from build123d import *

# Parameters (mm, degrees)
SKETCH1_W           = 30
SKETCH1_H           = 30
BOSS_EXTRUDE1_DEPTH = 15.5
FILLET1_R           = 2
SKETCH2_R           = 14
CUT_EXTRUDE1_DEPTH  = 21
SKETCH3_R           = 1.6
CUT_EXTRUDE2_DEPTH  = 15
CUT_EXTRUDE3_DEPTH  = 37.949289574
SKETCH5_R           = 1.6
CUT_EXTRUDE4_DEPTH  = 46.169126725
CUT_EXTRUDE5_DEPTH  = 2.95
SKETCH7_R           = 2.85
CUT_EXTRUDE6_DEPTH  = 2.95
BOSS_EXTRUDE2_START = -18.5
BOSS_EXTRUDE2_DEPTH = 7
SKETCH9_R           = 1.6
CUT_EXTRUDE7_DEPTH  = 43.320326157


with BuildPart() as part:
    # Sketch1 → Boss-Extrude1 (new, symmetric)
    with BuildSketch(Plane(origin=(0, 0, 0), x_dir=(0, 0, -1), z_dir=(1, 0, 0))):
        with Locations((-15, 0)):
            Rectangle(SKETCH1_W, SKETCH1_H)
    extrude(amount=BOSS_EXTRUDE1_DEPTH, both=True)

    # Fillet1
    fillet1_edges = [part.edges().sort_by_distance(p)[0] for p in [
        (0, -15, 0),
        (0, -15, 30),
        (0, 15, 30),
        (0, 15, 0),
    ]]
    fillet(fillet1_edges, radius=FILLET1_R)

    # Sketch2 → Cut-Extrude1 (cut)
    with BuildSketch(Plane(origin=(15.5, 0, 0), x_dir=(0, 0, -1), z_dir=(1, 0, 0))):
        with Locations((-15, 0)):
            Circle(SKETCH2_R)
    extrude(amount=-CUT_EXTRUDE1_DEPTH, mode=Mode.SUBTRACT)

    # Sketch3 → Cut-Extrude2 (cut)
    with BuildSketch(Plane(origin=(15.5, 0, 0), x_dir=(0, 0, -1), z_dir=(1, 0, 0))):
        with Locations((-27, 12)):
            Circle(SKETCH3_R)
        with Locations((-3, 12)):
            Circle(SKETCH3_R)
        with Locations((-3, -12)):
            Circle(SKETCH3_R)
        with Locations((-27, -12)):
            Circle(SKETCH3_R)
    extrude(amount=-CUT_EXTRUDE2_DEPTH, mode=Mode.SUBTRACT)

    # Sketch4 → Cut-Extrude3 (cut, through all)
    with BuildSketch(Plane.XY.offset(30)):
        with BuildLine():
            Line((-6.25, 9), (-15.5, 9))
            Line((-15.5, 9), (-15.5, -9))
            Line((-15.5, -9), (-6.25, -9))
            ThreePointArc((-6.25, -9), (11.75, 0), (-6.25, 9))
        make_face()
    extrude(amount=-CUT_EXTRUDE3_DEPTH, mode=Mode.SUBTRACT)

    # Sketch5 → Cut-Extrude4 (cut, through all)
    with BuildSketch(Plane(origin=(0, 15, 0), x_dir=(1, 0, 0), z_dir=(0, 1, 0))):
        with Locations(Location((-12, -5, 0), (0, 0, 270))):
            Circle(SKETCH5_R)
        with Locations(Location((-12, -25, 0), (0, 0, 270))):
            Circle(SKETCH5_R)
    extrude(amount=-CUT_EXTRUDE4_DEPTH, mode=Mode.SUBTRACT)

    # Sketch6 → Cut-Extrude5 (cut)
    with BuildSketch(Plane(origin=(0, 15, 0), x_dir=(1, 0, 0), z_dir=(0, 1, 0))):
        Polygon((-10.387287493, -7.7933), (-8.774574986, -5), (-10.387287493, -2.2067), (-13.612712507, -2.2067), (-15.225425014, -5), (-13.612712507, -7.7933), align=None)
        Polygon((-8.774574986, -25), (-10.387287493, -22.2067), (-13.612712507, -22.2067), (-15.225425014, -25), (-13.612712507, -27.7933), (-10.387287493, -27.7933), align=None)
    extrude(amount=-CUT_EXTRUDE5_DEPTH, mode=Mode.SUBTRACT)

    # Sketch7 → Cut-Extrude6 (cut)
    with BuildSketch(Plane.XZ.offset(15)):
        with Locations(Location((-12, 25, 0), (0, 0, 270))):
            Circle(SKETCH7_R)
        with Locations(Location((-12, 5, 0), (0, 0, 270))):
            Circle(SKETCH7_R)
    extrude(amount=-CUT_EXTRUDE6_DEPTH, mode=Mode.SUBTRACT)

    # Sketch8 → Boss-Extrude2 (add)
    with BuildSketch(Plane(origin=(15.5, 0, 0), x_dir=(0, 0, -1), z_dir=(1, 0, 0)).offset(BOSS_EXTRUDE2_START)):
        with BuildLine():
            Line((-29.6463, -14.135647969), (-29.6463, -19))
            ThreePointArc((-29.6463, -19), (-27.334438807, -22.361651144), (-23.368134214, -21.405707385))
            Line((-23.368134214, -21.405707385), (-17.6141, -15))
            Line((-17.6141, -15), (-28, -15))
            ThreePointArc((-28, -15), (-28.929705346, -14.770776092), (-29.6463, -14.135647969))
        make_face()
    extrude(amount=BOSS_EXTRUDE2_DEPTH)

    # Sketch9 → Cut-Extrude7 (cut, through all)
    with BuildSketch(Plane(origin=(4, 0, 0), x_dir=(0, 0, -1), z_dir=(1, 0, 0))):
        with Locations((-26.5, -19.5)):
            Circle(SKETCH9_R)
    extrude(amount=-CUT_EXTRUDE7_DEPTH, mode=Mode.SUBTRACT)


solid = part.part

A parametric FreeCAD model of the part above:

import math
import FreeCAD as App
import Part
import Sketcher
from FreeCAD import Vector
Q = App.Units.Quantity


def edges_at(feature, points):
    """Names of the edges that pass closest to the given points."""
    edges = feature.Shape.Edges
    near = lambda p: min(range(len(edges)), key=lambda i: edges[i].distToShape(Part.Vertex(*p))[0])
    return sorted({f"Edge{near(p) + 1}" for p in points})

doc = App.newDocument("Part")
body = doc.addObject("PartDesign::Body", "Body")

# Sketch on YZ plane
sketch1 = body.newObject("Sketcher::SketchObject", "Sketch")
sketch1.AttachmentSupport = (doc.getObject("YZ_Plane"), [""])
sketch1.MapMode = "FlatFace"
sketch1.addGeometry(Part.LineSegment(Vector(15, 30, 0), Vector(-15, 30, 0)), False)
sketch1.addGeometry(Part.LineSegment(Vector(-15, 30, 0), Vector(-15, 0, 0)), False)
sketch1.addGeometry(Part.LineSegment(Vector(-15, 0, 0), Vector(15, 0, 0)), False)
sketch1.addGeometry(Part.LineSegment(Vector(15, 0, 0), Vector(15, 30, 0)), False)
sketch1.addConstraint(Sketcher.Constraint("Coincident", 0, 2, 1, 1))
sketch1.addConstraint(Sketcher.Constraint("Coincident", 1, 2, 2, 1))
sketch1.addConstraint(Sketcher.Constraint("Coincident", 2, 2, 3, 1))
sketch1.addConstraint(Sketcher.Constraint("Coincident", 3, 2, 0, 1))
sketch1.addConstraint(Sketcher.Constraint("Horizontal", 0))
sketch1.addConstraint(Sketcher.Constraint("Vertical", 1))
sketch1.addConstraint(Sketcher.Constraint("Horizontal", 2))
sketch1.addConstraint(Sketcher.Constraint("Vertical", 3))
sketch1.addConstraint(Sketcher.Constraint("Symmetric", 1, 2, 2, 2, -1, 1))
sketch1.addConstraint(Sketcher.Constraint("Equal", 2, 1))
sketch1.addConstraint(Sketcher.Constraint("DistanceX", 0, 2, 0, 1, 30.0))
pad1 = body.newObject("PartDesign::Pad", "Pad")
pad1.Profile = sketch1
pad1.Length = 31
pad1.Midplane = True
doc.recompute()

fillet = body.newObject("PartDesign::Fillet", "Fillet")
fillet.Base = (pad1, edges_at(pad1, [
    (0, -15, 0),
    (0, -15, 30),
    (0, 15, 30),
    (0, 15, 0),
]))
fillet.Radius = 2

# Sketch on YZ plane
sketch2 = body.newObject("Sketcher::SketchObject", "Sketch001")
sketch2.AttachmentSupport = (doc.getObject("YZ_Plane"), [""])
sketch2.MapMode = "FlatFace"
sketch2.AttachmentOffset = App.Placement(Vector(0, 0, 15.5), App.Rotation())
sketch2.addGeometry(Part.Circle(Vector(0, 15, 0), Vector(0, 0, 1), 14), False)
sketch2.addConstraint(Sketcher.Constraint("PointOnObject", 0, 3, -2))
sketch2.addConstraint(Sketcher.Constraint("Diameter", 0, 28.0))
sketch2.addConstraint(Sketcher.Constraint("DistanceY", -1, 1, 0, 3, 15.0))
pocket1 = body.newObject("PartDesign::Pocket", "Pocket")
pocket1.Profile = sketch2
pocket1.Length = 21

# Sketch on YZ plane
sketch3 = body.newObject("Sketcher::SketchObject", "Sketch002")
sketch3.AttachmentSupport = (doc.getObject("YZ_Plane"), [""])
sketch3.MapMode = "FlatFace"
sketch3.AttachmentOffset = App.Placement(Vector(0, 0, 15.5), App.Rotation())
sketch3.addGeometry(Part.Circle(Vector(12, 27, 0), Vector(0, 0, 1), 1.6), False)
sketch3.addGeometry(Part.Circle(Vector(12, 3, 0), Vector(0, 0, 1), 1.6), False)
sketch3.addGeometry(Part.Circle(Vector(-12, 3, 0), Vector(0, 0, 1), 1.6), False)
sketch3.addGeometry(Part.Circle(Vector(-12, 27, 0), Vector(0, 0, 1), 1.6), False)
sketch3.addConstraint(Sketcher.Constraint("Equal", 0, 1))
sketch3.addConstraint(Sketcher.Constraint("Equal", 1, 2))
sketch3.addConstraint(Sketcher.Constraint("Equal", 2, 3))
sketch3.addConstraint(Sketcher.Constraint("Symmetric", 1, 3, 2, 3, -2))
sketch3.addConstraint(Sketcher.Constraint("Symmetric", 0, 3, 3, 3, -2))
sketch3.addConstraint(Sketcher.Constraint("Vertical", 0, 3, 1, 3))
sketch3.addConstraint(Sketcher.Constraint("Diameter", 0, 3.2))
sketch3.addConstraint(Sketcher.Constraint("DistanceX", -1, 1, 0, 3, 12.0))
sketch3.addConstraint(Sketcher.Constraint("DistanceY", -1, 1, 0, 3, 27.0))
sketch3.addConstraint(Sketcher.Constraint("DistanceY", -1, 1, 1, 3, 3.0))
pocket2 = body.newObject("PartDesign::Pocket", "Pocket001")
pocket2.Profile = sketch3
pocket2.Length = 15

# Sketch on XY plane
sketch4 = body.newObject("Sketcher::SketchObject", "Sketch003")
sketch4.AttachmentSupport = (doc.getObject("XY_Plane"), [""])
sketch4.MapMode = "FlatFace"
sketch4.AttachmentOffset = App.Placement(Vector(0, 0, 30), App.Rotation())
sketch4.addGeometry(Part.LineSegment(Vector(-6, 9, 0), Vector(-16, 9, 0)), False)
sketch4.addGeometry(Part.LineSegment(Vector(-16, 9, 0), Vector(-16, -9, 0)), False)
sketch4.addGeometry(Part.LineSegment(Vector(-16, -9, 0), Vector(-6, -9, 0)), False)
sketch4.addGeometry(Part.ArcOfCircle(Part.Circle(Vector(0, 0, 0), Vector(0, 0, 1), 11), math.radians(-127), math.radians(127)), False)
sketch4.addConstraint(Sketcher.Constraint("Coincident", 0, 2, 1, 1))
sketch4.addConstraint(Sketcher.Constraint("Coincident", 1, 2, 2, 1))
sketch4.addConstraint(Sketcher.Constraint("Coincident", 2, 2, 3, 1))
sketch4.addConstraint(Sketcher.Constraint("Coincident", 3, 2, 0, 1))
sketch4.addConstraint(Sketcher.Constraint("Horizontal", 0))
sketch4.addConstraint(Sketcher.Constraint("Vertical", 1))
sketch4.addConstraint(Sketcher.Constraint("Horizontal", 2))
sketch4.addConstraint(Sketcher.Constraint("Symmetric", 2, 2, 3, 2, -1))
sketch4.addConstraint(Sketcher.Constraint("DistanceY", 1, 2, 1, 1, 18.0))
sketch4.addConstraint(Sketcher.Constraint("Radius", 3, 11.25))
sketch4.addConstraint(Sketcher.Constraint("DistanceX", 0, 2, 3, 3, 16.0))
sketch4.addConstraint(Sketcher.Constraint("DistanceX", -1, 1, 3, 3, 0.5))
pocket3 = body.newObject("PartDesign::Pocket", "Pocket002")
pocket3.Profile = sketch4
pocket3.Type = "ThroughAll"

# Sketch on XZ plane
sketch5 = body.newObject("Sketcher::SketchObject", "Sketch004")
sketch5.AttachmentSupport = (doc.getObject("XZ_Plane"), [""])
sketch5.MapMode = "FlatFace"
sketch5.AttachmentOffset = App.Placement(Vector(0, 0, -15), App.Rotation())
sketch5.addGeometry(Part.Circle(Vector(-12, 5, 0), Vector(0, 0, 1), 1.6), False)
sketch5.addGeometry(Part.Circle(Vector(-12, 25, 0), Vector(0, 0, 1), 1.6), False)
sketch5.addConstraint(Sketcher.Constraint("Equal", 0, 1))
sketch5.addConstraint(Sketcher.Constraint("Vertical", 0, 3, 1, 3))
sketch5.addConstraint(Sketcher.Constraint("Diameter", 0, 3.2))
sketch5.addConstraint(Sketcher.Constraint("DistanceX", 0, 3, -1, 1, 12.0))
sketch5.addConstraint(Sketcher.Constraint("DistanceY", -1, 1, 0, 3, 5.0))
sketch5.addConstraint(Sketcher.Constraint("DistanceY", -1, 1, 1, 3, 25.0))
pocket4 = body.newObject("PartDesign::Pocket", "Pocket003")
pocket4.Profile = sketch5
pocket4.Type = "ThroughAll"
pocket4.Reversed = True

# Sketch on XZ plane
sketch6 = body.newObject("Sketcher::SketchObject", "Sketch005")
sketch6.AttachmentSupport = (doc.getObject("XZ_Plane"), [""])
sketch6.MapMode = "FlatFace"
sketch6.AttachmentOffset = App.Placement(Vector(0, 0, -15), App.Rotation())
sketch6.addGeometry(Part.LineSegment(Vector(-10.4, 7.8, 0), Vector(-8.8, 5, 0)), False)
sketch6.addGeometry(Part.LineSegment(Vector(-8.8, 5, 0), Vector(-10.4, 2.2, 0)), False)
sketch6.addGeometry(Part.LineSegment(Vector(-10.4, 2.2, 0), Vector(-13.6, 2.2, 0)), False)
sketch6.addGeometry(Part.LineSegment(Vector(-13.6, 2.2, 0), Vector(-15.2, 5, 0)), False)
sketch6.addGeometry(Part.LineSegment(Vector(-15.2, 5, 0), Vector(-13.6, 7.8, 0)), False)
sketch6.addGeometry(Part.LineSegment(Vector(-13.6, 7.8, 0), Vector(-10.4, 7.8, 0)), False)
sketch6.addGeometry(Part.LineSegment(Vector(-8.8, 25, 0), Vector(-10.4, 22.2, 0)), False)
sketch6.addGeometry(Part.LineSegment(Vector(-10.4, 22.2, 0), Vector(-13.6, 22.2, 0)), False)
sketch6.addGeometry(Part.LineSegment(Vector(-13.6, 22.2, 0), Vector(-15.2, 25, 0)), False)
sketch6.addGeometry(Part.LineSegment(Vector(-15.2, 25, 0), Vector(-13.6, 27.8, 0)), False)
sketch6.addGeometry(Part.LineSegment(Vector(-13.6, 27.8, 0), Vector(-10.4, 27.8, 0)), False)
sketch6.addGeometry(Part.LineSegment(Vector(-10.4, 27.8, 0), Vector(-8.8, 25, 0)), False)
sketch6.addConstraint(Sketcher.Constraint("Coincident", 0, 2, 1, 1))
sketch6.addConstraint(Sketcher.Constraint("Coincident", 1, 2, 2, 1))
sketch6.addConstraint(Sketcher.Constraint("Coincident", 2, 2, 3, 1))
sketch6.addConstraint(Sketcher.Constraint("Coincident", 3, 2, 4, 1))
sketch6.addConstraint(Sketcher.Constraint("Coincident", 4, 2, 5, 1))
sketch6.addConstraint(Sketcher.Constraint("Coincident", 5, 2, 0, 1))
sketch6.addConstraint(Sketcher.Constraint("Coincident", 6, 2, 7, 1))
sketch6.addConstraint(Sketcher.Constraint("Coincident", 7, 2, 8, 1))
sketch6.addConstraint(Sketcher.Constraint("Coincident", 8, 2, 9, 1))
sketch6.addConstraint(Sketcher.Constraint("Coincident", 9, 2, 10, 1))
sketch6.addConstraint(Sketcher.Constraint("Coincident", 10, 2, 11, 1))
sketch6.addConstraint(Sketcher.Constraint("Coincident", 11, 2, 6, 1))
sketch6.addConstraint(Sketcher.Constraint("Horizontal", 2))
sketch6.addConstraint(Sketcher.Constraint("Horizontal", 5))
sketch6.addConstraint(Sketcher.Constraint("Horizontal", 7))
sketch6.addConstraint(Sketcher.Constraint("Horizontal", 10))
sketch6.addConstraint(Sketcher.Constraint("Parallel", 0, 3))
sketch6.addConstraint(Sketcher.Constraint("Parallel", 1, 4))
sketch6.addConstraint(Sketcher.Constraint("Parallel", 4, 6))
sketch6.addConstraint(Sketcher.Constraint("Parallel", 3, 8))
sketch6.addConstraint(Sketcher.Constraint("Parallel", 6, 9))
sketch6.addConstraint(Sketcher.Constraint("Parallel", 8, 11))
sketch6.addConstraint(Sketcher.Constraint("Horizontal", 0, 2, 3, 2))
sketch6.addConstraint(Sketcher.Constraint("Horizontal", 8, 2, 11, 2))
sketch6.addConstraint(Sketcher.Constraint("Vertical", 2, 2, 4, 2))
sketch6.addConstraint(Sketcher.Constraint("Vertical", 1, 2, 5, 2))
sketch6.addConstraint(Sketcher.Constraint("Vertical", 5, 2, 6, 2))
sketch6.addConstraint(Sketcher.Constraint("Vertical", 4, 2, 7, 2))
sketch6.addConstraint(Sketcher.Constraint("Vertical", 3, 2, 8, 2))
sketch6.addConstraint(Sketcher.Constraint("Vertical", 7, 2, 9, 2))
sketch6.addConstraint(Sketcher.Constraint("Angle", 0, Q("-60 deg")))
sketch6.addConstraint(Sketcher.Constraint("DistanceY", -1, 1, 0, 2, 5.0))
sketch6.addConstraint(Sketcher.Constraint("DistanceY", -1, 1, 8, 2, 25.0))
sketch6.addConstraint(Sketcher.Constraint("DistanceY", -1, 1, 1, 2, 2.2067))
sketch6.addConstraint(Sketcher.Constraint("DistanceX", 2, 2, 2, 1, 3.225425))
sketch6.addConstraint(Sketcher.Constraint("DistanceX", 0, 2, -1, 1, 8.774575))
pocket5 = body.newObject("PartDesign::Pocket", "Pocket004")
pocket5.Profile = sketch6
pocket5.Length = 2.95
pocket5.Reversed = True

# Sketch on XZ plane
sketch7 = body.newObject("Sketcher::SketchObject", "Sketch006")
sketch7.AttachmentSupport = (doc.getObject("XZ_Plane"), [""])
sketch7.MapMode = "FlatFace"
sketch7.AttachmentOffset = App.Placement(Vector(0, 0, 15), App.Rotation())
sketch7.addGeometry(Part.Circle(Vector(-12, 25, 0), Vector(0, 0, 1), 2.9), False)
sketch7.addGeometry(Part.Circle(Vector(-12, 5, 0), Vector(0, 0, 1), 2.9), False)
sketch7.addConstraint(Sketcher.Constraint("Equal", 0, 1))
sketch7.addConstraint(Sketcher.Constraint("Vertical", 0, 3, 1, 3))
sketch7.addConstraint(Sketcher.Constraint("Diameter", 0, 5.7))
sketch7.addConstraint(Sketcher.Constraint("DistanceX", 0, 3, -1, 1, 12.0))
sketch7.addConstraint(Sketcher.Constraint("DistanceY", -1, 1, 0, 3, 25.0))
sketch7.addConstraint(Sketcher.Constraint("DistanceY", -1, 1, 1, 3, 5.0))
pocket6 = body.newObject("PartDesign::Pocket", "Pocket005")
pocket6.Profile = sketch7
pocket6.Length = 2.95

# Sketch on YZ plane
sketch8 = body.newObject("Sketcher::SketchObject", "Sketch007")
sketch8.AttachmentSupport = (doc.getObject("YZ_Plane"), [""])
sketch8.MapMode = "FlatFace"
sketch8.AttachmentOffset = App.Placement(Vector(0, 0, -3), App.Rotation())
sketch8.addGeometry(Part.LineSegment(Vector(-14.1, 29.6, 0), Vector(-19, 29.6, 0)), False)
sketch8.addGeometry(Part.ArcOfCircle(Part.Circle(Vector(-19, 26, 0), Vector(0, 0, 1), 3.6), math.radians(90), math.radians(228)), False)
sketch8.addGeometry(Part.LineSegment(Vector(-21.4, 23.4, 0), Vector(-15, 17.6, 0)), False)
sketch8.addGeometry(Part.LineSegment(Vector(-15, 17.6, 0), Vector(-15, 28, 0)), False)
sketch8.addGeometry(Part.ArcOfCircle(Part.Circle(Vector(-13, 28, 0), Vector(0, 0, 1), 2), math.radians(125), math.radians(180)), False)
sketch8.addConstraint(Sketcher.Constraint("Tangent", 0, 2, 1, 1))
sketch8.addConstraint(Sketcher.Constraint("Tangent", 1, 2, 2, 1))
sketch8.addConstraint(Sketcher.Constraint("Coincident", 2, 2, 3, 1))
sketch8.addConstraint(Sketcher.Constraint("Tangent", 3, 2, 4, 2))
sketch8.addConstraint(Sketcher.Constraint("Coincident", 4, 1, 0, 1))
sketch8.addConstraint(Sketcher.Constraint("Horizontal", 0))
sketch8.addConstraint(Sketcher.Constraint("Vertical", 3))
sketch8.addConstraint(Sketcher.Constraint("Radius", 4, 2.0))
sketch8.addConstraint(Sketcher.Constraint("Radius", 1, 3.6))
sketch8.addConstraint(Sketcher.Constraint("DistanceX", 1, 3, -1, 1, 19.0))
sketch8.addConstraint(Sketcher.Constraint("DistanceX", 4, 3, -1, 1, 13.0))
sketch8.addConstraint(Sketcher.Constraint("DistanceY", -1, 1, 4, 3, 28.0))
sketch8.addConstraint(Sketcher.Constraint("DistanceY", 3, 1, 3, 2, 10.3859))
sketch8.addConstraint(Sketcher.Constraint("DistanceY", -1, 1, 1, 3, 26.0463))
pad2 = body.newObject("PartDesign::Pad", "Pad001")
pad2.Profile = sketch8
pad2.Length = 7

# Sketch on YZ plane
sketch9 = body.newObject("Sketcher::SketchObject", "Sketch008")
sketch9.AttachmentSupport = (doc.getObject("YZ_Plane"), [""])
sketch9.MapMode = "FlatFace"
sketch9.AttachmentOffset = App.Placement(Vector(0, 0, 4), App.Rotation())
sketch9.addGeometry(Part.Circle(Vector(-19.5, 26.5, 0), Vector(0, 0, 1), 1.6), False)
sketch9.addConstraint(Sketcher.Constraint("Diameter", 0, 3.2))
sketch9.addConstraint(Sketcher.Constraint("DistanceX", 0, 3, -1, 1, 19.5))
sketch9.addConstraint(Sketcher.Constraint("DistanceY", -1, 1, 0, 3, 26.5))
pocket7 = body.newObject("PartDesign::Pocket", "Pocket006")
pocket7.Profile = sketch9
pocket7.Type = "ThroughAll"

doc.recompute()
